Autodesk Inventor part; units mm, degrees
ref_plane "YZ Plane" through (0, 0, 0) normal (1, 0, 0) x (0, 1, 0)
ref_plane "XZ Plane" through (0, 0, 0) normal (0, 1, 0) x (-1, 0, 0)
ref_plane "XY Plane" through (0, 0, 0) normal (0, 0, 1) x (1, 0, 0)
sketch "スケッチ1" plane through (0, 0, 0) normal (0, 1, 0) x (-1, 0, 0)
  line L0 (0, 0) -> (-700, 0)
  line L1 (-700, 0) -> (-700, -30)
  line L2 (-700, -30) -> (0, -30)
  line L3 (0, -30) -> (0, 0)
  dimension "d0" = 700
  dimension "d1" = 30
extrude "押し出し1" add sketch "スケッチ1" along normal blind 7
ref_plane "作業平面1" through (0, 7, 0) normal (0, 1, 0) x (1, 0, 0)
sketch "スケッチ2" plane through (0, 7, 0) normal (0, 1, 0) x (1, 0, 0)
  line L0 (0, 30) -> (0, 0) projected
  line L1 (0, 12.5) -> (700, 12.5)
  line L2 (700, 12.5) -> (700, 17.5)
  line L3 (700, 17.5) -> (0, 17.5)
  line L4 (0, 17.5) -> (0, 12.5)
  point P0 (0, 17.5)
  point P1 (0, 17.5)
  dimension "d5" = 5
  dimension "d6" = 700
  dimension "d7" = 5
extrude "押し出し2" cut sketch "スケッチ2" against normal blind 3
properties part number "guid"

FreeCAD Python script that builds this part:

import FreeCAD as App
import Part
import Sketcher
from FreeCAD import Vector

doc = App.newDocument("Part")
body = doc.addObject("PartDesign::Body", "Body")

sketch1 = body.newObject("Sketcher::SketchObject", "Sketch")
sketch1.AttachmentSupport = (doc.getObject("XZ_Plane"), [""])
sketch1.MapMode = "FlatFace"
sketch1.addGeometry([
    Part.LineSegment(Vector(0, -30, 0), Vector(0, 0, 0)),
    Part.LineSegment(Vector(0, 0, 0), Vector(700, 0, 0)),
    Part.LineSegment(Vector(700, 0, 0), Vector(700, -30, 0)),
    Part.LineSegment(Vector(700, -30, 0), Vector(0, -30, 0)),
], False)
sketch1.addConstraint([
    Sketcher.Constraint("Coincident", 0, 2, 1, 1),
    Sketcher.Constraint("Coincident", 1, 2, 2, 1),
    Sketcher.Constraint("Coincident", 2, 2, 3, 1),
    Sketcher.Constraint("Coincident", 3, 2, 0, 1),
    Sketcher.Constraint("Vertical", 0),
    Sketcher.Constraint("Horizontal", 1),
    Sketcher.Constraint("Vertical", 2),
    Sketcher.Constraint("Horizontal", 3),
    Sketcher.Constraint("Coincident", 0, 2, -1, 1),
    Sketcher.Constraint("DistanceX", 1, 1, 1, 2, 700.0),
    Sketcher.Constraint("DistanceY", 0, 1, 0, 2, 30.0),
])
pad1 = body.newObject("PartDesign::Pad", "Pad")
pad1.Profile = sketch1
pad1.Length = 7
pad1.Reversed = True

sketch2 = body.newObject("Sketcher::SketchObject", "Sketch001")
sketch2.AttachmentSupport = (doc.getObject("XZ_Plane"), [""])
sketch2.MapMode = "FlatFace"
sketch2.AttachmentOffset = App.Placement(Vector(0, 0, -7), App.Rotation())
sketch2.addGeometry([
    Part.LineSegment(Vector(700, -18, 0), Vector(0, -18, 0)),
    Part.LineSegment(Vector(0, -18, 0), Vector(0, -12, 0)),
    Part.LineSegment(Vector(0, -12, 0), Vector(700, -12, 0)),
    Part.LineSegment(Vector(700, -12, 0), Vector(700, -18, 0)),
], False)
sketch2.addConstraint([
    Sketcher.Constraint("Coincident", 0, 2, 1, 1),
    Sketcher.Constraint("Coincident", 1, 2, 2, 1),
    Sketcher.Constraint("Coincident", 2, 2, 3, 1),
    Sketcher.Constraint("Coincident", 3, 2, 0, 1),
    Sketcher.Constraint("Horizontal", 0),
    Sketcher.Constraint("Vertical", 1),
    Sketcher.Constraint("Horizontal", 2),
    Sketcher.Constraint("Vertical", 3),
    Sketcher.Constraint("PointOnObject", 0, 2, -2),
    Sketcher.Constraint("DistanceX", 0, 2, 0, 1, 700.0),
    Sketcher.Constraint("DistanceY", 1, 1, 1, 2, 5.0),
    Sketcher.Constraint("DistanceY", 0, 2, -1, 1, 17.5),
])
pocket1 = body.newObject("PartDesign::Pocket", "Pocket")
pocket1.Profile = sketch2
pocket1.Length = 3
pocket1.Reversed = True

doc.recompute()
